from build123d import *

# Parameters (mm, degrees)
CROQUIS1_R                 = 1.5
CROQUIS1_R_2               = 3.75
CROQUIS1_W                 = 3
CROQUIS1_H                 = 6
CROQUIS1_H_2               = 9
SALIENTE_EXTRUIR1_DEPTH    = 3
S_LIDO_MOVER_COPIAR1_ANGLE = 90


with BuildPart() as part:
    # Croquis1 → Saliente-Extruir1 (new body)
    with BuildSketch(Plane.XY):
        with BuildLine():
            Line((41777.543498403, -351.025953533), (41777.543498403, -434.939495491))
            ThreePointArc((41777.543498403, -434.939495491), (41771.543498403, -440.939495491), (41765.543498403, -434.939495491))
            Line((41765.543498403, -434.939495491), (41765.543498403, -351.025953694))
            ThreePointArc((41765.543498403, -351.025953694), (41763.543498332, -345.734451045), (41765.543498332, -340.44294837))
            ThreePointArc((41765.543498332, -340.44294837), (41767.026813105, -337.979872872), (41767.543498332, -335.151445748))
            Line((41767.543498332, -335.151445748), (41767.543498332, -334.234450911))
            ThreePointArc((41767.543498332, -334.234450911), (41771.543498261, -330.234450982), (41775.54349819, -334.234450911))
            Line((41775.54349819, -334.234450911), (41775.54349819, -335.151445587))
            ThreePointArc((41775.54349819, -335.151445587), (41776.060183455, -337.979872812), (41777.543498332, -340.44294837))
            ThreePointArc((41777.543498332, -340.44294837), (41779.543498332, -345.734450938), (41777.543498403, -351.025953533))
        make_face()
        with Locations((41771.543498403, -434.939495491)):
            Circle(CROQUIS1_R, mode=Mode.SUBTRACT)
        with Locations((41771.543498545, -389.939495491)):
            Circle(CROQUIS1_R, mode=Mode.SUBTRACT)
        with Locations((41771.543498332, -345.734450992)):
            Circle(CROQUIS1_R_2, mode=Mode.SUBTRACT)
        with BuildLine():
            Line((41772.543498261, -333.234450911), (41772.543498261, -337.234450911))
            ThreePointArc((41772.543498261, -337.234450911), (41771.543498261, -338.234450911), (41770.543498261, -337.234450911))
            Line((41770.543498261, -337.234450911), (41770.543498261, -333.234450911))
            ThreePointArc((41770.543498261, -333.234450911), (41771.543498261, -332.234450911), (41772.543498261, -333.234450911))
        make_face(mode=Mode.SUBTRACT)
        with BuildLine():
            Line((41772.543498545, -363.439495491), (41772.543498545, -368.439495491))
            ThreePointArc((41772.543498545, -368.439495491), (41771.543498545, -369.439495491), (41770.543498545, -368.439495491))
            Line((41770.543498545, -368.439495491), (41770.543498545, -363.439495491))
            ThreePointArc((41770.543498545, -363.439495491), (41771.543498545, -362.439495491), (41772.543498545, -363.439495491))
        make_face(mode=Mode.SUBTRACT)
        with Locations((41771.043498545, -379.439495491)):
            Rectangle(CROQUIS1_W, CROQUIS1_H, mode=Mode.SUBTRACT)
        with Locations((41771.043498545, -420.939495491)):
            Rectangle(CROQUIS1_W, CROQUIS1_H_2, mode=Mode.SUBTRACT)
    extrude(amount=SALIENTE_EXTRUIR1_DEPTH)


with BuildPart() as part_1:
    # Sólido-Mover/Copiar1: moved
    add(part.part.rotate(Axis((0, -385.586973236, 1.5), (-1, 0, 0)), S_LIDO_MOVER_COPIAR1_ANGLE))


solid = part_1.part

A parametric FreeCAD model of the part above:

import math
import FreeCAD as App
import Part
import Sketcher
from FreeCAD import Vector
Q = App.Units.Quantity


def add_polygon(sketch, points):
    """Adds a closed chain of lines whose ends are joined by coincident constraints."""
    first, n = sketch.GeometryCount, len(points)
    for a, b in zip(points, points[1:] + points[:1]):
        sketch.addGeometry(Part.LineSegment(App.Vector(*a, 0), App.Vector(*b, 0)), False)
    for i in range(n):
        sketch.addConstraint(Sketcher.Constraint("Coincident", first + i, 2, first + (i + 1) % n, 1))

doc = App.newDocument("Part")
body = doc.addObject("PartDesign::Body", "Body")

# Sketch on XY plane
sketch1 = body.newObject("Sketcher::SketchObject", "Sketch")
sketch1.AttachmentSupport = (doc.getObject("XY_Plane"), [""])
sketch1.MapMode = "FlatFace"
sketch1.addGeometry(Part.LineSegment(Vector(41777.5, -434.9, 0), Vector(41777.5, -351, 0)), False)  # 0
sketch1.addGeometry(Part.ArcOfCircle(Part.Circle(Vector(41771.5, -345.7, 0), Vector(0, 0, 1), 8), math.radians(-41), math.radians(41)), False)  # 1
sketch1.addGeometry(Part.ArcOfCircle(Part.Circle(Vector(41783.5, -335.2, 0), Vector(0, 0, 1), 8), math.radians(-180), math.radians(-139)), False)  # 2
sketch1.addGeometry(Part.LineSegment(Vector(41775.5, -335.2, 0), Vector(41775.5, -334.2, 0)), False)  # 3
sketch1.addGeometry(Part.ArcOfCircle(Part.Circle(Vector(41771.5, -334.2, 0), Vector(0, 0, 1), 4), math.radians(0), math.radians(180)), False)  # 4
sketch1.addGeometry(Part.LineSegment(Vector(41767.5, -334.2, 0), Vector(41767.5, -335.2, 0)), False)  # 5
sketch1.addGeometry(Part.ArcOfCircle(Part.Circle(Vector(41759.5, -335.2, 0), Vector(0, 0, 1), 8), math.radians(-41), math.radians(0)), False)  # 6
sketch1.addGeometry(Part.ArcOfCircle(Part.Circle(Vector(41771.5, -345.7, 0), Vector(0, 0, 1), 8), math.radians(139), math.radians(221)), False)  # 7
sketch1.addGeometry(Part.LineSegment(Vector(41765.5, -351, 0), Vector(41765.5, -434.9, 0)), False)  # 8
sketch1.addGeometry(Part.ArcOfCircle(Part.Circle(Vector(41771.5, -434.9, 0), Vector(0, 0, 1), 6), math.radians(180), math.radians(360)), False)  # 9
sketch1.addGeometry(Part.Circle(Vector(41771.5, -434.9, 0), Vector(0, 0, 1), 1.5), False)  # 10
sketch1.addGeometry(Part.Circle(Vector(41771.5, -389.9, 0), Vector(0, 0, 1), 1.5), False)  # 11
add_polygon(sketch1, [(41769.5, -425.4), (41769.5, -416.4), (41772.5, -416.4), (41772.5, -425.4)])  # lines 12-15
sketch1.addGeometry(Part.LineSegment(Vector(41772.5, -363.4, 0), Vector(41772.5, -368.4, 0)), False)  # 16
sketch1.addGeometry(Part.ArcOfCircle(Part.Circle(Vector(41771.5, -368.4, 0), Vector(0, 0, 1), 1), math.radians(180), math.radians(360)), False)  # 17
sketch1.addGeometry(Part.LineSegment(Vector(41770.5, -368.4, 0), Vector(41770.5, -363.4, 0)), False)  # 18
sketch1.addGeometry(Part.ArcOfCircle(Part.Circle(Vector(41771.5, -363.4, 0), Vector(0, 0, 1), 1), math.radians(0), math.radians(180)), False)  # 19
add_polygon(sketch1, [(41769.5, -382.4), (41769.5, -376.4), (41772.5, -376.4), (41772.5, -382.4)])  # lines 20-23
sketch1.addGeometry(Part.Circle(Vector(41771.5, -345.7, 0), Vector(0, 0, 1), 3.8), False)  # 24
sketch1.addGeometry(Part.LineSegment(Vector(41772.5, -333.2, 0), Vector(41772.5, -337.2, 0)), False)  # 25
sketch1.addGeometry(Part.ArcOfCircle(Part.Circle(Vector(41771.5, -337.2, 0), Vector(0, 0, 1), 1), math.radians(180), math.radians(360)), False)  # 26
sketch1.addGeometry(Part.LineSegment(Vector(41770.5, -337.2, 0), Vector(41770.5, -333.2, 0)), False)  # 27
sketch1.addGeometry(Part.ArcOfCircle(Part.Circle(Vector(41771.5, -333.2, 0), Vector(0, 0, 1), 1), math.radians(0), math.radians(180)), False)  # 28
sketch1.addConstraint([
    Sketcher.Constraint("Coincident", 0, 2, 1, 1),
    Sketcher.Constraint("Tangent", 1, 2, 2, 2),
    Sketcher.Constraint("Tangent", 2, 1, 3, 1),
    Sketcher.Constraint("Tangent", 3, 2, 4, 1),
    Sketcher.Constraint("Tangent", 4, 2, 5, 1),
    Sketcher.Constraint("Tangent", 5, 2, 6, 2),
    Sketcher.Constraint("Tangent", 6, 1, 7, 1),
    Sketcher.Constraint("Coincident", 7, 2, 8, 1),
    Sketcher.Constraint("Tangent", 8, 2, 9, 1),
    Sketcher.Constraint("Tangent", 9, 2, 0, 1),
    Sketcher.Constraint("Tangent", 16, 2, 17, 2),
    Sketcher.Constraint("Tangent", 17, 1, 18, 1),
    Sketcher.Constraint("Tangent", 18, 2, 19, 2),
    Sketcher.Constraint("Tangent", 19, 1, 16, 1),
    Sketcher.Constraint("Tangent", 25, 2, 26, 2),
    Sketcher.Constraint("Tangent", 26, 1, 27, 1),
    Sketcher.Constraint("Tangent", 27, 2, 28, 2),
    Sketcher.Constraint("Tangent", 28, 1, 25, 1),
    Sketcher.Constraint("Vertical", 0),
    Sketcher.Constraint("Vertical", 3),
    Sketcher.Constraint("Vertical", 5),
    Sketcher.Constraint("Vertical", 8),
    Sketcher.Constraint("Vertical", 12),
    Sketcher.Constraint("Horizontal", 13),
    Sketcher.Constraint("Vertical", 14),
    Sketcher.Constraint("Horizontal", 15),
    Sketcher.Constraint("Vertical", 16),
    Sketcher.Constraint("Vertical", 18),
    Sketcher.Constraint("Vertical", 20),
    Sketcher.Constraint("Horizontal", 21),
    Sketcher.Constraint("Vertical", 22),
    Sketcher.Constraint("Horizontal", 23),
    Sketcher.Constraint("Vertical", 25),
    Sketcher.Constraint("Vertical", 27),
    Sketcher.Constraint("Coincident", 7, 3, 1, 3),
    Sketcher.Constraint("Coincident", 10, 3, 9, 3),
    Sketcher.Constraint("Coincident", 24, 3, 1, 3),
    Sketcher.Constraint("Equal", 1, 2),
    Sketcher.Constraint("Equal", 2, 6),
    Sketcher.Constraint("Equal", 6, 7),
    Sketcher.Constraint("Equal", 10, 11),
    Sketcher.Constraint("Equal", 19, 26),
    Sketcher.Constraint("Horizontal", 2, 3, 6, 3),
    Sketcher.Constraint("Horizontal", 0, 2, 7, 2),
    Sketcher.Constraint("Vertical", 10, 3, 11, 3),
    Sketcher.Constraint("Vertical", 11, 3, 17, 3),
    Sketcher.Constraint("Vertical", 24, 3, 26, 3),
    Sketcher.Constraint("Vertical", 0, 2, 1, 2),
    Sketcher.Constraint("Vertical", 14, 2, 16, 2),
    Sketcher.Constraint("Vertical", 15, 2, 20, 2),
    Sketcher.Constraint("Vertical", 19, 1, 21, 2),
    Sketcher.Constraint("Diameter", 10, Q("3 mm")),
    Sketcher.Constraint("Radius", 1, Q("8 mm")),
    Sketcher.Constraint("Radius", 4, Q("4 mm")),
    Sketcher.Constraint("Radius", 17, Q("1 mm")),
    Sketcher.Constraint("Diameter", 24, Q("7.5 mm")),
    Sketcher.Constraint("DistanceX", 13, 1, 13, 2, Q("3 mm")),
    Sketcher.Constraint("DistanceY", 12, 1, 12, 2, Q("9 mm")),
    Sketcher.Constraint("DistanceY", 16, 2, 16, 1, Q("5 mm")),
    Sketcher.Constraint("DistanceY", 20, 1, 20, 2, Q("6 mm")),
    Sketcher.Constraint("DistanceY", 25, 2, 25, 1, Q("4 mm")),
    Sketcher.Constraint("DistanceY", 9, 3, 11, 3, Q("45 mm")),
    Sketcher.Constraint("DistanceY", 26, 3, 4, 3, Q("3 mm")),
    Sketcher.Constraint("DistanceY", 20, 2, 17, 1, Q("8 mm")),
    Sketcher.Constraint("DistanceY", 1, 3, 4, 3, Q("11.5 mm")),
    Sketcher.Constraint("DistanceY", 11, 3, 17, 3, Q("21.5 mm")),
    Sketcher.Constraint("DistanceY", 9, 3, 12, 2, Q("18.5 mm")),
    Sketcher.Constraint("DistanceY", 0, 1, 0, 2, Q("83.913542 mm")),
    Sketcher.Constraint("DistanceX", -1, 1, 1, 3, Q("41771.543498 mm")),
    Sketcher.Constraint("DistanceY", 1, 3, -1, 1, Q("345.734451 mm")),
])
pad1 = body.newObject("PartDesign::Pad", "Pad")
pad1.Profile = sketch1
pad1.Length = 3
body2 = doc.addObject("PartDesign::Body", "Body001")
doc.recompute()

body.Placement = App.Placement(Vector(0, -387.086973, -384.086973), App.Rotation(Vector(-1, 0, 0), 90))
boolean = body2.newObject("PartDesign::Boolean", "Boolean")
boolean.Type = "Fuse"
boolean.addObjects([body])

doc.recompute()
